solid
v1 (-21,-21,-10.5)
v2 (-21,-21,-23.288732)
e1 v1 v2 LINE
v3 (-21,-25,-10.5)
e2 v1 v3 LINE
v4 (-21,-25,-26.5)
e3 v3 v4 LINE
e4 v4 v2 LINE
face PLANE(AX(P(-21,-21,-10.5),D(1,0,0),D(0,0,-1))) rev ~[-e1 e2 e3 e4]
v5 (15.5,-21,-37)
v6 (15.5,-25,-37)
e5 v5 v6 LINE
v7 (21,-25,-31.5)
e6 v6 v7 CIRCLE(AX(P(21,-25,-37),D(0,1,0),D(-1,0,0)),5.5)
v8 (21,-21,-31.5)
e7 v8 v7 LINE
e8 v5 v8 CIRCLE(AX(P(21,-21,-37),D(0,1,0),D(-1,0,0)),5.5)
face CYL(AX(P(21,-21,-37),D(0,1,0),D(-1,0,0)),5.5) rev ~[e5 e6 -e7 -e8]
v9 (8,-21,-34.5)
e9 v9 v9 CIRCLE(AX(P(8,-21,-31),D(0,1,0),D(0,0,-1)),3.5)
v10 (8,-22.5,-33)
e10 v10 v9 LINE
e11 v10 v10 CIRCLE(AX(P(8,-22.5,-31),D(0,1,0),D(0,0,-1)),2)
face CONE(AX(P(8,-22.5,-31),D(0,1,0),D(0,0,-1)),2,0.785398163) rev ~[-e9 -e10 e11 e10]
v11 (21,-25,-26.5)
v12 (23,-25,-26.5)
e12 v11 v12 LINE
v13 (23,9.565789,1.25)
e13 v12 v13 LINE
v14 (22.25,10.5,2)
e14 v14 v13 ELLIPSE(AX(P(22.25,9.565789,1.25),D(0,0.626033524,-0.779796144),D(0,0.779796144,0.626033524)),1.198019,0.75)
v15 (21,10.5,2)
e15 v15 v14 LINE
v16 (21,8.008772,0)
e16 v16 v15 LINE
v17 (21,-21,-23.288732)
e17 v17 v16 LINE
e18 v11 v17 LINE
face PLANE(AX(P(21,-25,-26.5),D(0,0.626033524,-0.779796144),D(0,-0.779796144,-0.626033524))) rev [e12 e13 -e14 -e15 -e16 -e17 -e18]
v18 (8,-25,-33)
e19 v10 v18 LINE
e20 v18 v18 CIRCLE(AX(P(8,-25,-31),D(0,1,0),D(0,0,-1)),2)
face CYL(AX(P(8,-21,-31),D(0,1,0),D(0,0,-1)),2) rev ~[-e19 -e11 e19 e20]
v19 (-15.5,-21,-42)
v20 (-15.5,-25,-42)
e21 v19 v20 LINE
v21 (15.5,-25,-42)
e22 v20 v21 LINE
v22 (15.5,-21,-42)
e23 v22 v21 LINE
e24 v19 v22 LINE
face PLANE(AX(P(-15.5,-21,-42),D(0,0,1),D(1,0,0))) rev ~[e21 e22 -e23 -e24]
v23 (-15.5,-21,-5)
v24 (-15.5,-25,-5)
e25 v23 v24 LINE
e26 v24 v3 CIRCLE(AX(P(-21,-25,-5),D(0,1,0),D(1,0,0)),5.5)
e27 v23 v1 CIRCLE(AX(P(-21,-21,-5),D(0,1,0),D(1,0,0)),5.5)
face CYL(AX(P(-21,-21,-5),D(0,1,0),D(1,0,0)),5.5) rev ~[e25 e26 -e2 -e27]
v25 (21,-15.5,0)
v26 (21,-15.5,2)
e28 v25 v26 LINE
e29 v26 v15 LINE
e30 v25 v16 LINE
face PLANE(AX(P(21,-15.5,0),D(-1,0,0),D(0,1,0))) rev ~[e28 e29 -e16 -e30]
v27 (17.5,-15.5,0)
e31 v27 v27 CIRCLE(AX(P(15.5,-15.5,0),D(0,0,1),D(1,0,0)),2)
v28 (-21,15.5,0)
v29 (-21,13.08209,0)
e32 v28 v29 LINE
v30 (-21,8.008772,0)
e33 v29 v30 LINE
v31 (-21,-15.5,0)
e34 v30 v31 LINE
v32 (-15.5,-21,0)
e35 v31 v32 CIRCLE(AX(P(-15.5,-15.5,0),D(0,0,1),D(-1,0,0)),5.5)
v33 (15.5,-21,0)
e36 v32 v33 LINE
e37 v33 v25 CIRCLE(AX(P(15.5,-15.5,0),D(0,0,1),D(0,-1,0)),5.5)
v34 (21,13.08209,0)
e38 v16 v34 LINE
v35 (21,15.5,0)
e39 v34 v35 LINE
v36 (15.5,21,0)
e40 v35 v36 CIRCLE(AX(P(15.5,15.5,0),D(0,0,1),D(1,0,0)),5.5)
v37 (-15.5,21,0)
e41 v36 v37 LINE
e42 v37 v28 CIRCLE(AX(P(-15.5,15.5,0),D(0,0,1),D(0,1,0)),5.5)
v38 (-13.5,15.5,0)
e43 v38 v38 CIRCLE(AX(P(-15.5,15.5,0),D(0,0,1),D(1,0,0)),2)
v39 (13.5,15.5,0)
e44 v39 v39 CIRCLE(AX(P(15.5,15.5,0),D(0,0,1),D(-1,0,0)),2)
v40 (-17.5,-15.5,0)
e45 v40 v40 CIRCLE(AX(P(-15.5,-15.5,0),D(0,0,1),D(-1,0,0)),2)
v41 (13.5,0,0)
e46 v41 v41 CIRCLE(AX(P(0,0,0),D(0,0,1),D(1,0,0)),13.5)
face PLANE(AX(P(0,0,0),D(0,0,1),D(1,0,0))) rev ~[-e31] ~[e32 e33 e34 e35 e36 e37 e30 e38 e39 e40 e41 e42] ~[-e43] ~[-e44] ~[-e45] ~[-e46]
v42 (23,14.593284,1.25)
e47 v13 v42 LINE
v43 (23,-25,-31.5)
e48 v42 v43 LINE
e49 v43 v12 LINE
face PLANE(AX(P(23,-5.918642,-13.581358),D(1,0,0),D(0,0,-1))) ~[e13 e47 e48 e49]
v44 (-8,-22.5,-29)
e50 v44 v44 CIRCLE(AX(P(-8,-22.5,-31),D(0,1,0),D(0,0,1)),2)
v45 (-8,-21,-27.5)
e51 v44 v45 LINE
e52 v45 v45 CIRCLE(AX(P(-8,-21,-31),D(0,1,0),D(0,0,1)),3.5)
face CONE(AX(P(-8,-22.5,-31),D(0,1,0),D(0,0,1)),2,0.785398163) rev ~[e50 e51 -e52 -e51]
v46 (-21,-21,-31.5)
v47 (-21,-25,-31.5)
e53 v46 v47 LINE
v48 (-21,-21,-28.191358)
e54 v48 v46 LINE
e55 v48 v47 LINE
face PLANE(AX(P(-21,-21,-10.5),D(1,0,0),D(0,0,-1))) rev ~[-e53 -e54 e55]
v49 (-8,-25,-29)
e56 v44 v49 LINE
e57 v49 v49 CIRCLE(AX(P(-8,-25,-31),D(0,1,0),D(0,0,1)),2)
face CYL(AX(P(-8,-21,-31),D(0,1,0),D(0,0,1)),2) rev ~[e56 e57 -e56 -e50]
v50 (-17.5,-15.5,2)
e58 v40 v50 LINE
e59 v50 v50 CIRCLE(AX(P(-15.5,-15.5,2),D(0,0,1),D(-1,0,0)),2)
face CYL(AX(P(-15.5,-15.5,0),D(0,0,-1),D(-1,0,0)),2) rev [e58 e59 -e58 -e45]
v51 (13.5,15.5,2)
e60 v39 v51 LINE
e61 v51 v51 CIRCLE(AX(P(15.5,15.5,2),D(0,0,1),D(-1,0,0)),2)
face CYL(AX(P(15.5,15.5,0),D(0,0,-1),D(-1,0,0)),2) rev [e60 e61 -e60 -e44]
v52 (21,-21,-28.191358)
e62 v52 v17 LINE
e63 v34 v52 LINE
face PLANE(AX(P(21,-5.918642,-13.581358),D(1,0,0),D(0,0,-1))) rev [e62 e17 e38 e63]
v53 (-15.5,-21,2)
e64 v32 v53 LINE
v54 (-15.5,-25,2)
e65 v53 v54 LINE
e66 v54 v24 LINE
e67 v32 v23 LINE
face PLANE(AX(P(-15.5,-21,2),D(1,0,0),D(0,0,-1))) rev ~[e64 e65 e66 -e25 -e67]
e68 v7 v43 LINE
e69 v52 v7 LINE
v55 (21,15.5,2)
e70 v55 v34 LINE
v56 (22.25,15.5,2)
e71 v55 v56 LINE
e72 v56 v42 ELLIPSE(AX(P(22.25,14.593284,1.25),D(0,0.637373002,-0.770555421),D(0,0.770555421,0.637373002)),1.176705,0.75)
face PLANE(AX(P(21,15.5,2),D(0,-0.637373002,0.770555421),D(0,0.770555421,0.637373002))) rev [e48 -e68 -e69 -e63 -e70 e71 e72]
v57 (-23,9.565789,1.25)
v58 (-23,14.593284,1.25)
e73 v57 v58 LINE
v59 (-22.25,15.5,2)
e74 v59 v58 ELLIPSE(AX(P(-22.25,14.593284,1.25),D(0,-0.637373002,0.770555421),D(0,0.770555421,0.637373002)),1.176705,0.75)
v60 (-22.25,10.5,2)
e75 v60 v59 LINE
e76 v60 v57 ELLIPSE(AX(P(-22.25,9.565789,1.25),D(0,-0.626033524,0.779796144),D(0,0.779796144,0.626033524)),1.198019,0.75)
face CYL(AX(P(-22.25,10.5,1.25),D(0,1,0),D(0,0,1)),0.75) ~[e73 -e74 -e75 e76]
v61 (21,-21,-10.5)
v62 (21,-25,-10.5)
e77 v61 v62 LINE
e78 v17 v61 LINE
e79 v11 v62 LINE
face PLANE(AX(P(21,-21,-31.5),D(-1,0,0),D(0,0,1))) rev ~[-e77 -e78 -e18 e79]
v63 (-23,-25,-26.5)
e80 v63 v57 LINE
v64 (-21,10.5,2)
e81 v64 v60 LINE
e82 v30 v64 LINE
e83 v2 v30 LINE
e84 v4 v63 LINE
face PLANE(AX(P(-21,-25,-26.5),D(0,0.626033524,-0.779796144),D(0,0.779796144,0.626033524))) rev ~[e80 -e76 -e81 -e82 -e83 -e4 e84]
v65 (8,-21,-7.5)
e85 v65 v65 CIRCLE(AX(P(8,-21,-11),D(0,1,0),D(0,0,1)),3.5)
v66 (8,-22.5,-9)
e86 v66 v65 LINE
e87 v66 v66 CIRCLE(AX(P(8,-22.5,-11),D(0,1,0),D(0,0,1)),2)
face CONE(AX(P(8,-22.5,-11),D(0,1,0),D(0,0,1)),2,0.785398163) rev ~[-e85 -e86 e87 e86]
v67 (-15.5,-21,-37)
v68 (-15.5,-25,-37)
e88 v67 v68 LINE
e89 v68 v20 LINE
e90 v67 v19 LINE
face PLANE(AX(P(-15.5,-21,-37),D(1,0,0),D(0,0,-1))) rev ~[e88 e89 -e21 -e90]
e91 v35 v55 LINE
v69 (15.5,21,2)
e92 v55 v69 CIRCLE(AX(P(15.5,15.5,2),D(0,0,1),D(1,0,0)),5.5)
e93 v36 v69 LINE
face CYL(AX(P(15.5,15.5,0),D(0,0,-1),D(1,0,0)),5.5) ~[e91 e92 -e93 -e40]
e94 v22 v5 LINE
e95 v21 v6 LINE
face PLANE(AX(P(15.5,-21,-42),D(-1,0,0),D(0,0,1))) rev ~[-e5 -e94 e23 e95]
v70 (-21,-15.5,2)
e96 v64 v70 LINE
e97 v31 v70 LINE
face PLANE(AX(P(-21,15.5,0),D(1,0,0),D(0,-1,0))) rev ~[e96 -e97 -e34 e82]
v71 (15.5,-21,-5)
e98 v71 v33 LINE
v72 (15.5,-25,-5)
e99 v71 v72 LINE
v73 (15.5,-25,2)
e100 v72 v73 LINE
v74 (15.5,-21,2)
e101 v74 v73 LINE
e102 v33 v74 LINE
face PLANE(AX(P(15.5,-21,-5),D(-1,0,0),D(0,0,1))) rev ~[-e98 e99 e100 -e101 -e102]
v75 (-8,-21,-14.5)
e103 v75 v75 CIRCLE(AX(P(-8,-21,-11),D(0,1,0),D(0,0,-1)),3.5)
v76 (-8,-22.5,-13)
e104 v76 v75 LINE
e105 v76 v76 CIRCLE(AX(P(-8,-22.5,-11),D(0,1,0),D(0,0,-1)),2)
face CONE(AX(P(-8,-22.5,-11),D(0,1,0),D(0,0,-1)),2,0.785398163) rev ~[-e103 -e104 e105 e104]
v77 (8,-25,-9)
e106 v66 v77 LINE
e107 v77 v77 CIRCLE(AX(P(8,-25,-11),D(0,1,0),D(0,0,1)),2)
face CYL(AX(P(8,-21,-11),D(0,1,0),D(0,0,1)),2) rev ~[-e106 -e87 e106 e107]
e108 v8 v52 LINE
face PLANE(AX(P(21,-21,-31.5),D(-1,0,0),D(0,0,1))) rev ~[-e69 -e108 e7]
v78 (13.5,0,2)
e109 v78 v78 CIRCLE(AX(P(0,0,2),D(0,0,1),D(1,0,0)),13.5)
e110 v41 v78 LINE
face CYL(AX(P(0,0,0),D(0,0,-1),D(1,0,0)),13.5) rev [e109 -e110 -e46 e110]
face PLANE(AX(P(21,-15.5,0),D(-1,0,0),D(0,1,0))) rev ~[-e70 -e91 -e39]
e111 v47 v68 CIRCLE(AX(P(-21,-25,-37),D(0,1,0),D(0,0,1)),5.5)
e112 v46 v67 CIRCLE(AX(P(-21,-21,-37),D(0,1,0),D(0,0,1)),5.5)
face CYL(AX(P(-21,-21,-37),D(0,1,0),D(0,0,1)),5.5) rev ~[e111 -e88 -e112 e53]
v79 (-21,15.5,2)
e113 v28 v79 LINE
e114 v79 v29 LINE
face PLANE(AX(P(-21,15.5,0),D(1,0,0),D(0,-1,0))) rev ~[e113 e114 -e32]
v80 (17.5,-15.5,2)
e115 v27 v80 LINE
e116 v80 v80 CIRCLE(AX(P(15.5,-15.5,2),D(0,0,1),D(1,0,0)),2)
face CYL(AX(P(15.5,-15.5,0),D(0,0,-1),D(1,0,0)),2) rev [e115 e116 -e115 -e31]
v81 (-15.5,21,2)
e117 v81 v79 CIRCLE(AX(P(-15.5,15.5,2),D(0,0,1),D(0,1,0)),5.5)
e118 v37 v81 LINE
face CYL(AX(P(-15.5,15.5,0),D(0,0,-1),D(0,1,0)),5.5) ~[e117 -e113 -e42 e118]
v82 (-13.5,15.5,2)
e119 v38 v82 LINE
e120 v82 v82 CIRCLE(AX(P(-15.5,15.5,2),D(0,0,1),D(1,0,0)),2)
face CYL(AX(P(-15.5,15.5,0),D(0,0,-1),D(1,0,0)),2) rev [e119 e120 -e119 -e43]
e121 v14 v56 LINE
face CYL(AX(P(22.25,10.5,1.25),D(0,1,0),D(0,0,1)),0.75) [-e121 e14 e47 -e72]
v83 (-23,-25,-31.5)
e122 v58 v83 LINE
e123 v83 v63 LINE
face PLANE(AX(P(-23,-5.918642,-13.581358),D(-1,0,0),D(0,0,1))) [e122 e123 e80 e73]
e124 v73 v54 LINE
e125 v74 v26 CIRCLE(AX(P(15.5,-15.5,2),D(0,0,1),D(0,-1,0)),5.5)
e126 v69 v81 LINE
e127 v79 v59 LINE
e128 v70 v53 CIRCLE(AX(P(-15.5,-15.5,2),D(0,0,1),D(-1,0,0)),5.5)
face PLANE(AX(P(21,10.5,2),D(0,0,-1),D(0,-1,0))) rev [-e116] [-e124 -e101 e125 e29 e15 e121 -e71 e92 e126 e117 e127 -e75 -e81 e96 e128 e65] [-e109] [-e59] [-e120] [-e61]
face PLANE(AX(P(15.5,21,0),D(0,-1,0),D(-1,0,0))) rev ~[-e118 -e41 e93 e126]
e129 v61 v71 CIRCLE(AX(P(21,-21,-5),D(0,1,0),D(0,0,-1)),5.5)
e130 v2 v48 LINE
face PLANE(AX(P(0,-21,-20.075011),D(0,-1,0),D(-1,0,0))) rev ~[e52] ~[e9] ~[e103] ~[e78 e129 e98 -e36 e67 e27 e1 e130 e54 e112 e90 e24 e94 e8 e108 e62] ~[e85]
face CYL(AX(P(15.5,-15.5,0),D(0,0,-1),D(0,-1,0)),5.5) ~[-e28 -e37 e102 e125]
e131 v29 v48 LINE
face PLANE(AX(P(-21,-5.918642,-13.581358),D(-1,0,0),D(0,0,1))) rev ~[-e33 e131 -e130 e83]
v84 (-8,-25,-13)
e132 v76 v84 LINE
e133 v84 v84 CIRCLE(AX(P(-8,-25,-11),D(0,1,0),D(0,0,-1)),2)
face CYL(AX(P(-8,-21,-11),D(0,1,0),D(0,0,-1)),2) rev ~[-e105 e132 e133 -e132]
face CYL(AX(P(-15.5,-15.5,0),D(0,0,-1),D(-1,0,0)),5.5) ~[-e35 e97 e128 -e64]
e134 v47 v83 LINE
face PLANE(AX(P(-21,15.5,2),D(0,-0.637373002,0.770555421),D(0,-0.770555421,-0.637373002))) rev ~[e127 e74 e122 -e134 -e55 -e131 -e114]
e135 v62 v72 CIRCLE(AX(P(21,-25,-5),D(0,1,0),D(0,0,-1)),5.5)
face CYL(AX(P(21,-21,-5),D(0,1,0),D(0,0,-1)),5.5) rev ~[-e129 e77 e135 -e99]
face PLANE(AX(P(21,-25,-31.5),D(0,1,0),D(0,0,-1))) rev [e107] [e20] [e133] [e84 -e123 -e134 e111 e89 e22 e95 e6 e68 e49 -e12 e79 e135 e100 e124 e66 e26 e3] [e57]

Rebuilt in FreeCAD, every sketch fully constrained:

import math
import FreeCAD as App
import Part
import Sketcher
from FreeCAD import Vector


def edges_at(feature, points):
    """Names of the edges that pass closest to the given points."""
    edges = feature.Shape.Edges
    near = lambda p: min(range(len(edges)), key=lambda i: edges[i].distToShape(Part.Vertex(*p))[0])
    return sorted({f"Edge{near(p) + 1}" for p in points})


def add_polygon(sketch, points):
    """Adds a closed chain of lines whose ends are joined by coincident constraints."""
    first, n = sketch.GeometryCount, len(points)
    for a, b in zip(points, points[1:] + points[:1]):
        sketch.addGeometry(Part.LineSegment(App.Vector(*a, 0), App.Vector(*b, 0)), False)
    for i in range(n):
        sketch.addConstraint(Sketcher.Constraint("Coincident", first + i, 2, first + (i + 1) % n, 1))

doc = App.newDocument("Part")
body = doc.addObject("PartDesign::Body", "Body")

# Sketch on XY plane
sketch1 = doc.addObject("Sketcher::SketchObject", "Sketch")
body.addObject(sketch1)
sketch1.AttachmentSupport = (doc.XY_Plane, [""])
sketch1.MapMode = "FlatFace"
sketch1.addGeometry(Part.LineSegment(Vector(-15.5, -21, 0), Vector(15.5, -21, 0)), False)
sketch1.addGeometry(Part.ArcOfCircle(Part.Circle(Vector(15.5, -15.5, 0), Vector(0, 0, 1), 5.5), math.radians(-90), math.radians(0)), False)
sketch1.addGeometry(Part.LineSegment(Vector(21, -15.5, 0), Vector(21, 15.5, 0)), False)
sketch1.addGeometry(Part.ArcOfCircle(Part.Circle(Vector(15.5, 15.5, 0), Vector(0, 0, 1), 5.5), math.radians(0), math.radians(90)), False)
sketch1.addGeometry(Part.LineSegment(Vector(15.5, 21, 0), Vector(-15.5, 21, 0)), False)
sketch1.addGeometry(Part.ArcOfCircle(Part.Circle(Vector(-15.5, 15.5, 0), Vector(0, 0, 1), 5.5), math.radians(90), math.radians(180)), False)
sketch1.addGeometry(Part.LineSegment(Vector(-21, 15.5, 0), Vector(-21, -15.5, 0)), False)
sketch1.addGeometry(Part.ArcOfCircle(Part.Circle(Vector(-15.5, -15.5, 0), Vector(0, 0, 1), 5.5), math.radians(180), math.radians(270)), False)
sketch1.addGeometry(Part.Circle(Vector(-15.5, -15.5, 0), Vector(0, 0, 1), 2), False)
sketch1.addGeometry(Part.Circle(Vector(15.5, -15.5, 0), Vector(0, 0, 1), 2), False)
sketch1.addGeometry(Part.Circle(Vector(-15.5, 15.5, 0), Vector(0, 0, 1), 2), False)
sketch1.addGeometry(Part.Circle(Vector(0, 0, 0), Vector(0, 0, 1), 13.5), False)
sketch1.addGeometry(Part.Circle(Vector(15.5, 15.5, 0), Vector(0, 0, 1), 2), False)
sketch1.addConstraint(Sketcher.Constraint("Tangent", 0, 2, 1, 1))
sketch1.addConstraint(Sketcher.Constraint("Tangent", 1, 2, 2, 1))
sketch1.addConstraint(Sketcher.Constraint("Tangent", 2, 2, 3, 1))
sketch1.addConstraint(Sketcher.Constraint("Tangent", 3, 2, 4, 1))
sketch1.addConstraint(Sketcher.Constraint("Tangent", 4, 2, 5, 1))
sketch1.addConstraint(Sketcher.Constraint("Tangent", 5, 2, 6, 1))
sketch1.addConstraint(Sketcher.Constraint("Tangent", 6, 2, 7, 1))
sketch1.addConstraint(Sketcher.Constraint("Tangent", 7, 2, 0, 1))
sketch1.addConstraint(Sketcher.Constraint("Horizontal", 0))
sketch1.addConstraint(Sketcher.Constraint("Vertical", 2))
sketch1.addConstraint(Sketcher.Constraint("Horizontal", 4))
sketch1.addConstraint(Sketcher.Constraint("Vertical", 6))
sketch1.addConstraint(Sketcher.Constraint("Coincident", 11, 3, -1, 1))
sketch1.addConstraint(Sketcher.Constraint("Coincident", 8, 3, 7, 3))
sketch1.addConstraint(Sketcher.Constraint("Coincident", 9, 3, 1, 3))
sketch1.addConstraint(Sketcher.Constraint("Coincident", 10, 3, 5, 3))
sketch1.addConstraint(Sketcher.Constraint("Coincident", 12, 3, 3, 3))
sketch1.addConstraint(Sketcher.Constraint("Equal", 1, 3))
sketch1.addConstraint(Sketcher.Constraint("Equal", 3, 5))
sketch1.addConstraint(Sketcher.Constraint("Equal", 5, 7))
sketch1.addConstraint(Sketcher.Constraint("Equal", 8, 9))
sketch1.addConstraint(Sketcher.Constraint("Equal", 9, 10))
sketch1.addConstraint(Sketcher.Constraint("Equal", 10, 12))
sketch1.addConstraint(Sketcher.Constraint("Symmetric", 1, 3, 5, 3, -1, 1))
sketch1.addConstraint(Sketcher.Constraint("Equal", 4, 2))
sketch1.addConstraint(Sketcher.Constraint("Diameter", 8, 4.0))
sketch1.addConstraint(Sketcher.Constraint("Diameter", 11, 27.0))
sketch1.addConstraint(Sketcher.Constraint("Radius", 1, 5.5))
sketch1.addConstraint(Sketcher.Constraint("DistanceX", 0, 1, 0, 2, 31.0))
pad1 = doc.addObject("PartDesign::Pad", "Pad")
body.addObject(pad1)
pad1.Profile = sketch1
pad1.Length = 2
body2 = doc.addObject("PartDesign::Body", "Body001")

# Sketch on XZ plane
sketch2 = doc.addObject("Sketcher::SketchObject", "Sketch001")
body2.addObject(sketch2)
sketch2.AttachmentSupport = (doc.getObject("XZ_Plane001"), [""])
sketch2.MapMode = "FlatFace"
sketch2.AttachmentOffset = App.Placement(Vector(0, 0, 21), App.Rotation())
sketch2.addGeometry(Part.ArcOfCircle(Part.Circle(Vector(-21, -5, 0), Vector(0, 0, 1), 5.5), math.radians(-90), math.radians(0)), False)
sketch2.addGeometry(Part.LineSegment(Vector(-15.5, -5, 0), Vector(-15.5, 2, 0)), False)
sketch2.addGeometry(Part.LineSegment(Vector(-15.5, 2, 0), Vector(15.5, 2, 0)), False)
sketch2.addGeometry(Part.LineSegment(Vector(15.5, 2, 0), Vector(15.5, -5, 0)), False)
sketch2.addGeometry(Part.ArcOfCircle(Part.Circle(Vector(21, -5, 0), Vector(0, 0, 1), 5.5), math.radians(180), math.radians(270)), False)
sketch2.addGeometry(Part.LineSegment(Vector(21, -10.5, 0), Vector(21, -31.5, 0)), False)
sketch2.addGeometry(Part.ArcOfCircle(Part.Circle(Vector(21, -37, 0), Vector(0, 0, 1), 5.5), math.radians(90), math.radians(180)), False)
sketch2.addGeometry(Part.LineSegment(Vector(15.5, -37, 0), Vector(15.5, -42, 0)), False)
sketch2.addGeometry(Part.LineSegment(Vector(15.5, -42, 0), Vector(-15.5, -42, 0)), False)
sketch2.addGeometry(Part.LineSegment(Vector(-15.5, -42, 0), Vector(-15.5, -37, 0)), False)
sketch2.addGeometry(Part.ArcOfCircle(Part.Circle(Vector(-21, -37, 0), Vector(0, 0, 1), 5.5), math.radians(0), math.radians(90)), False)
sketch2.addGeometry(Part.LineSegment(Vector(-21, -31.5, 0), Vector(-21, -10.5, 0)), False)
sketch2.addGeometry(Part.Circle(Vector(8, -11, 0), Vector(0, 0, 1), 2), False)
sketch2.addGeometry(Part.Circle(Vector(-8, -11, 0), Vector(0, 0, 1), 2), False)
sketch2.addGeometry(Part.Circle(Vector(8, -31, 0), Vector(0, 0, 1), 2), False)
sketch2.addGeometry(Part.Circle(Vector(-8, -31, 0), Vector(0, 0, 1), 2), False)
sketch2.addConstraint(Sketcher.Constraint("Tangent", 0, 2, 1, 1))
sketch2.addConstraint(Sketcher.Constraint("Coincident", 1, 2, 2, 1))
sketch2.addConstraint(Sketcher.Constraint("Coincident", 2, 2, 3, 1))
sketch2.addConstraint(Sketcher.Constraint("Tangent", 3, 2, 4, 1))
sketch2.addConstraint(Sketcher.Constraint("Coincident", 4, 2, 5, 1))
sketch2.addConstraint(Sketcher.Constraint("Coincident", 5, 2, 6, 1))
sketch2.addConstraint(Sketcher.Constraint("Tangent", 6, 2, 7, 1))
sketch2.addConstraint(Sketcher.Constraint("Coincident", 7, 2, 8, 1))
sketch2.addConstraint(Sketcher.Constraint("Coincident", 8, 2, 9, 1))
sketch2.addConstraint(Sketcher.Constraint("Tangent", 9, 2, 10, 1))
sketch2.addConstraint(Sketcher.Constraint("Coincident", 10, 2, 11, 1))
sketch2.addConstraint(Sketcher.Constraint("Coincident", 11, 2, 0, 1))
sketch2.addConstraint(Sketcher.Constraint("Vertical", 1))
sketch2.addConstraint(Sketcher.Constraint("Horizontal", 2))
sketch2.addConstraint(Sketcher.Constraint("Vertical", 3))
sketch2.addConstraint(Sketcher.Constraint("Vertical", 5))
sketch2.addConstraint(Sketcher.Constraint("Vertical", 7))
sketch2.addConstraint(Sketcher.Constraint("Horizontal", 8))
sketch2.addConstraint(Sketcher.Constraint("Vertical", 9))
sketch2.addConstraint(Sketcher.Constraint("Vertical", 11))
sketch2.addConstraint(Sketcher.Constraint("Equal", 0, 4))
sketch2.addConstraint(Sketcher.Constraint("Equal", 4, 6))
sketch2.addConstraint(Sketcher.Constraint("Equal", 6, 10))
sketch2.addConstraint(Sketcher.Constraint("Equal", 12, 13))
sketch2.addConstraint(Sketcher.Constraint("Equal", 13, 14))
sketch2.addConstraint(Sketcher.Constraint("Equal", 14, 15))
sketch2.addConstraint(Sketcher.Constraint("Symmetric", 0, 3, 4, 3, -2))
sketch2.addConstraint(Sketcher.Constraint("Symmetric", 6, 3, 10, 3, -2))
sketch2.addConstraint(Sketcher.Constraint("Symmetric", 12, 3, 13, 3, -2))
sketch2.addConstraint(Sketcher.Constraint("Symmetric", 14, 3, 15, 3, -2))
sketch2.addConstraint(Sketcher.Constraint("Vertical", 4, 3, 6, 3))
sketch2.addConstraint(Sketcher.Constraint("Vertical", 12, 3, 14, 3))
sketch2.addConstraint(Sketcher.Constraint("Vertical", 6, 3, 4, 2))
sketch2.addConstraint(Sketcher.Constraint("Vertical", 0, 3, 10, 2))
sketch2.addConstraint(Sketcher.Constraint("Diameter", 12, 4.0))
sketch2.addConstraint(Sketcher.Constraint("Radius", 0, 5.5))
sketch2.addConstraint(Sketcher.Constraint("DistanceX", 2, 1, 2, 2, 31.0))
sketch2.addConstraint(Sketcher.Constraint("DistanceY", 1, 1, 1, 2, 7.0))
sketch2.addConstraint(Sketcher.Constraint("DistanceY", 5, 2, 5, 1, 21.0))
sketch2.addConstraint(Sketcher.Constraint("DistanceY", 7, 2, 7, 1, 5.0))
sketch2.addConstraint(Sketcher.Constraint("DistanceY", 0, 3, -1, 1, 5.0))
sketch2.addConstraint(Sketcher.Constraint("DistanceX", -1, 1, 12, 3, 8.0))
sketch2.addConstraint(Sketcher.Constraint("DistanceY", 12, 3, -1, 1, 11.0))
sketch2.addConstraint(Sketcher.Constraint("DistanceY", 14, 3, -1, 1, 31.0))
pad2 = doc.addObject("PartDesign::Pad", "Pad001")
body2.addObject(pad2)
pad2.Profile = sketch2
pad2.Length = 4
doc.recompute()

chamfer = doc.addObject("PartDesign::Chamfer", "Chamfer")
body2.addObject(chamfer)
chamfer.Base = (pad2, edges_at(pad2, [
    (-8, -21, -33),
    (-8, -21, -9),
    (8, -21, -29),
    (8, -21, -13),
]))
chamfer.Size = 1.5
doc.recompute()

boolean = doc.addObject("PartDesign::Boolean", "Boolean")
body.addObject(boolean)
boolean.Type = "Fuse"
boolean.addObjects([body2])

# Sketch on YZ plane
sketch3 = doc.addObject("Sketcher::SketchObject", "Sketch002")
body.addObject(sketch3)
sketch3.AttachmentSupport = (doc.YZ_Plane, [""])
sketch3.MapMode = "FlatFace"
sketch3.AttachmentOffset = App.Placement(Vector(0, 0, -21), App.Rotation())
add_polygon(sketch3, [(-25, -26), (10, 2), (16, 2), (-25, -32)])  # lines 0-3
sketch3.addConstraint(Sketcher.Constraint("Horizontal", 1))
sketch3.addConstraint(Sketcher.Constraint("Vertical", 3))
sketch3.addConstraint(Sketcher.Constraint("Equal", 1, 3))
sketch3.addConstraint(Sketcher.Constraint("DistanceX", 1, 1, 1, 2, 5.0))
sketch3.addConstraint(Sketcher.Constraint("DistanceY", -1, 1, 0, 2, 2.0))
sketch3.addConstraint(Sketcher.Constraint("DistanceX", 2, 2, -1, 1, 25.0))
sketch3.addConstraint(Sketcher.Constraint("DistanceX", -1, 1, 0, 2, 10.5))
sketch3.addConstraint(Sketcher.Constraint("DistanceY", 2, 2, -1, 1, 31.5))
pad3 = doc.addObject("PartDesign::Pad", "Pad002")
body.addObject(pad3)
pad3.Profile = sketch3
pad3.Length = 2
pad3.Reversed = True
doc.recompute()

mirrored = doc.addObject("PartDesign::Mirrored", "Mirrored")
body.addObject(mirrored)
mirrored.Originals = [pad3]
mirrored.MirrorPlane = (doc.YZ_Plane, [""])
body.Tip = mirrored
doc.recompute()

fillet = doc.addObject("PartDesign::Fillet", "Fillet")
body.addObject(fillet)
fillet.Base = (mirrored, edges_at(mirrored, [(23, 13, 2)]))
fillet.Radius = 0.75
doc.recompute()

fillet2 = doc.addObject("PartDesign::Fillet", "Fillet001")
body.addObject(fillet2)
fillet2.Base = (fillet, edges_at(fillet, [(-23, 13, 2)]))
fillet2.Radius = 0.75

doc.recompute()
